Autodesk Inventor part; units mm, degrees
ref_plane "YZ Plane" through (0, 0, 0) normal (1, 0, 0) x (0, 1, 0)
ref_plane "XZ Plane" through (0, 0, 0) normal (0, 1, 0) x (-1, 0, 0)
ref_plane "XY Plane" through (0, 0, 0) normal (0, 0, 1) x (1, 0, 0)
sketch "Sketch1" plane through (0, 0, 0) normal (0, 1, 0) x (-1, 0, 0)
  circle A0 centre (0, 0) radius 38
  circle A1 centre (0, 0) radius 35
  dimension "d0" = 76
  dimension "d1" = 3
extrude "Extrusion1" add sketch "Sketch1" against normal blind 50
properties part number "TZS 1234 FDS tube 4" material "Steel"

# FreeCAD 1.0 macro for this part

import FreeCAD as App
import Part
import Sketcher

V = App.Vector
Q = App.Units.Quantity

doc = App.newDocument("Part")
body = doc.addObject("PartDesign::Body", "Body")

# Sketch on XZ plane
sketch1 = doc.addObject("Sketcher::SketchObject", "Sketch")
body.addObject(sketch1)
sketch1.AttachmentSupport = (doc.XZ_Plane, [""])
sketch1.MapMode = "FlatFace"
sketch1.addGeometry([
    Part.Circle(V(0, 0, 0), V(0, 0, 1), 38),
    Part.Circle(V(0, 0, 0), V(0, 0, 1), 35),
], False)
sketch1.addConstraint([
    Sketcher.Constraint("Coincident", 0, 3, -1, 1),
    Sketcher.Constraint("Coincident", 1, 3, -1, 1),
    Sketcher.Constraint("Diameter", 0, Q("76 mm")),
    Sketcher.Constraint("Diameter", 1, Q("70 mm")),
])
pad1 = doc.addObject("PartDesign::Pad", "Pad")
body.addObject(pad1)
pad1.Profile = sketch1
pad1.Length = 50

doc.recompute()
